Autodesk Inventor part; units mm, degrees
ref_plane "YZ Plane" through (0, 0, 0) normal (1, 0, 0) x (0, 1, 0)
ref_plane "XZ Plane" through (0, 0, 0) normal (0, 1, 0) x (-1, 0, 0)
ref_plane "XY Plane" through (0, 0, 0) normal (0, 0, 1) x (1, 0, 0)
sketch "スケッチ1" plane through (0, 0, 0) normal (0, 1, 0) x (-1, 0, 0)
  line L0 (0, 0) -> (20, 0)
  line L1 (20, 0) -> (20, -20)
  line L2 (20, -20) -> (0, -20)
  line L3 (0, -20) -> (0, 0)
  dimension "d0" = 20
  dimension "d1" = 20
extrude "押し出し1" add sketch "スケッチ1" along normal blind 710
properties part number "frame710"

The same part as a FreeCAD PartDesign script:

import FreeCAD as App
import Part
import Sketcher

doc = App.newDocument("Part")
body = doc.addObject("PartDesign::Body", "Body")

sketch1 = body.newObject("Sketcher::SketchObject", "Sketch")
sketch1.AttachmentSupport = (doc.getObject("XZ_Plane"), [""])
sketch1.MapMode = "FlatFace"
sketch1.addGeometry([
    Part.LineSegment(App.Vector(-20, 0, 0), App.Vector(0, 0, 0)),
    Part.LineSegment(App.Vector(0, 0, 0), App.Vector(0, -20, 0)),
    Part.LineSegment(App.Vector(0, -20, 0), App.Vector(-20, -20, 0)),
    Part.LineSegment(App.Vector(-20, -20, 0), App.Vector(-20, 0, 0)),
], False)
sketch1.addConstraint([
    Sketcher.Constraint("Coincident", 0, 2, 1, 1),
    Sketcher.Constraint("Coincident", 1, 2, 2, 1),
    Sketcher.Constraint("Coincident", 2, 2, 3, 1),
    Sketcher.Constraint("Coincident", 3, 2, 0, 1),
    Sketcher.Constraint("Horizontal", 0),
    Sketcher.Constraint("Vertical", 1),
    Sketcher.Constraint("Horizontal", 2),
    Sketcher.Constraint("Vertical", 3),
    Sketcher.Constraint("Coincident", 0, 2, -1, 1),
    Sketcher.Constraint("Equal", 2, 1),
    Sketcher.Constraint("DistanceX", 0, 1, 0, 2, 20.0),
])
pad1 = body.newObject("PartDesign::Pad", "Pad")
pad1.Profile = sketch1
pad1.Length = 710
pad1.Reversed = True

doc.recompute()
